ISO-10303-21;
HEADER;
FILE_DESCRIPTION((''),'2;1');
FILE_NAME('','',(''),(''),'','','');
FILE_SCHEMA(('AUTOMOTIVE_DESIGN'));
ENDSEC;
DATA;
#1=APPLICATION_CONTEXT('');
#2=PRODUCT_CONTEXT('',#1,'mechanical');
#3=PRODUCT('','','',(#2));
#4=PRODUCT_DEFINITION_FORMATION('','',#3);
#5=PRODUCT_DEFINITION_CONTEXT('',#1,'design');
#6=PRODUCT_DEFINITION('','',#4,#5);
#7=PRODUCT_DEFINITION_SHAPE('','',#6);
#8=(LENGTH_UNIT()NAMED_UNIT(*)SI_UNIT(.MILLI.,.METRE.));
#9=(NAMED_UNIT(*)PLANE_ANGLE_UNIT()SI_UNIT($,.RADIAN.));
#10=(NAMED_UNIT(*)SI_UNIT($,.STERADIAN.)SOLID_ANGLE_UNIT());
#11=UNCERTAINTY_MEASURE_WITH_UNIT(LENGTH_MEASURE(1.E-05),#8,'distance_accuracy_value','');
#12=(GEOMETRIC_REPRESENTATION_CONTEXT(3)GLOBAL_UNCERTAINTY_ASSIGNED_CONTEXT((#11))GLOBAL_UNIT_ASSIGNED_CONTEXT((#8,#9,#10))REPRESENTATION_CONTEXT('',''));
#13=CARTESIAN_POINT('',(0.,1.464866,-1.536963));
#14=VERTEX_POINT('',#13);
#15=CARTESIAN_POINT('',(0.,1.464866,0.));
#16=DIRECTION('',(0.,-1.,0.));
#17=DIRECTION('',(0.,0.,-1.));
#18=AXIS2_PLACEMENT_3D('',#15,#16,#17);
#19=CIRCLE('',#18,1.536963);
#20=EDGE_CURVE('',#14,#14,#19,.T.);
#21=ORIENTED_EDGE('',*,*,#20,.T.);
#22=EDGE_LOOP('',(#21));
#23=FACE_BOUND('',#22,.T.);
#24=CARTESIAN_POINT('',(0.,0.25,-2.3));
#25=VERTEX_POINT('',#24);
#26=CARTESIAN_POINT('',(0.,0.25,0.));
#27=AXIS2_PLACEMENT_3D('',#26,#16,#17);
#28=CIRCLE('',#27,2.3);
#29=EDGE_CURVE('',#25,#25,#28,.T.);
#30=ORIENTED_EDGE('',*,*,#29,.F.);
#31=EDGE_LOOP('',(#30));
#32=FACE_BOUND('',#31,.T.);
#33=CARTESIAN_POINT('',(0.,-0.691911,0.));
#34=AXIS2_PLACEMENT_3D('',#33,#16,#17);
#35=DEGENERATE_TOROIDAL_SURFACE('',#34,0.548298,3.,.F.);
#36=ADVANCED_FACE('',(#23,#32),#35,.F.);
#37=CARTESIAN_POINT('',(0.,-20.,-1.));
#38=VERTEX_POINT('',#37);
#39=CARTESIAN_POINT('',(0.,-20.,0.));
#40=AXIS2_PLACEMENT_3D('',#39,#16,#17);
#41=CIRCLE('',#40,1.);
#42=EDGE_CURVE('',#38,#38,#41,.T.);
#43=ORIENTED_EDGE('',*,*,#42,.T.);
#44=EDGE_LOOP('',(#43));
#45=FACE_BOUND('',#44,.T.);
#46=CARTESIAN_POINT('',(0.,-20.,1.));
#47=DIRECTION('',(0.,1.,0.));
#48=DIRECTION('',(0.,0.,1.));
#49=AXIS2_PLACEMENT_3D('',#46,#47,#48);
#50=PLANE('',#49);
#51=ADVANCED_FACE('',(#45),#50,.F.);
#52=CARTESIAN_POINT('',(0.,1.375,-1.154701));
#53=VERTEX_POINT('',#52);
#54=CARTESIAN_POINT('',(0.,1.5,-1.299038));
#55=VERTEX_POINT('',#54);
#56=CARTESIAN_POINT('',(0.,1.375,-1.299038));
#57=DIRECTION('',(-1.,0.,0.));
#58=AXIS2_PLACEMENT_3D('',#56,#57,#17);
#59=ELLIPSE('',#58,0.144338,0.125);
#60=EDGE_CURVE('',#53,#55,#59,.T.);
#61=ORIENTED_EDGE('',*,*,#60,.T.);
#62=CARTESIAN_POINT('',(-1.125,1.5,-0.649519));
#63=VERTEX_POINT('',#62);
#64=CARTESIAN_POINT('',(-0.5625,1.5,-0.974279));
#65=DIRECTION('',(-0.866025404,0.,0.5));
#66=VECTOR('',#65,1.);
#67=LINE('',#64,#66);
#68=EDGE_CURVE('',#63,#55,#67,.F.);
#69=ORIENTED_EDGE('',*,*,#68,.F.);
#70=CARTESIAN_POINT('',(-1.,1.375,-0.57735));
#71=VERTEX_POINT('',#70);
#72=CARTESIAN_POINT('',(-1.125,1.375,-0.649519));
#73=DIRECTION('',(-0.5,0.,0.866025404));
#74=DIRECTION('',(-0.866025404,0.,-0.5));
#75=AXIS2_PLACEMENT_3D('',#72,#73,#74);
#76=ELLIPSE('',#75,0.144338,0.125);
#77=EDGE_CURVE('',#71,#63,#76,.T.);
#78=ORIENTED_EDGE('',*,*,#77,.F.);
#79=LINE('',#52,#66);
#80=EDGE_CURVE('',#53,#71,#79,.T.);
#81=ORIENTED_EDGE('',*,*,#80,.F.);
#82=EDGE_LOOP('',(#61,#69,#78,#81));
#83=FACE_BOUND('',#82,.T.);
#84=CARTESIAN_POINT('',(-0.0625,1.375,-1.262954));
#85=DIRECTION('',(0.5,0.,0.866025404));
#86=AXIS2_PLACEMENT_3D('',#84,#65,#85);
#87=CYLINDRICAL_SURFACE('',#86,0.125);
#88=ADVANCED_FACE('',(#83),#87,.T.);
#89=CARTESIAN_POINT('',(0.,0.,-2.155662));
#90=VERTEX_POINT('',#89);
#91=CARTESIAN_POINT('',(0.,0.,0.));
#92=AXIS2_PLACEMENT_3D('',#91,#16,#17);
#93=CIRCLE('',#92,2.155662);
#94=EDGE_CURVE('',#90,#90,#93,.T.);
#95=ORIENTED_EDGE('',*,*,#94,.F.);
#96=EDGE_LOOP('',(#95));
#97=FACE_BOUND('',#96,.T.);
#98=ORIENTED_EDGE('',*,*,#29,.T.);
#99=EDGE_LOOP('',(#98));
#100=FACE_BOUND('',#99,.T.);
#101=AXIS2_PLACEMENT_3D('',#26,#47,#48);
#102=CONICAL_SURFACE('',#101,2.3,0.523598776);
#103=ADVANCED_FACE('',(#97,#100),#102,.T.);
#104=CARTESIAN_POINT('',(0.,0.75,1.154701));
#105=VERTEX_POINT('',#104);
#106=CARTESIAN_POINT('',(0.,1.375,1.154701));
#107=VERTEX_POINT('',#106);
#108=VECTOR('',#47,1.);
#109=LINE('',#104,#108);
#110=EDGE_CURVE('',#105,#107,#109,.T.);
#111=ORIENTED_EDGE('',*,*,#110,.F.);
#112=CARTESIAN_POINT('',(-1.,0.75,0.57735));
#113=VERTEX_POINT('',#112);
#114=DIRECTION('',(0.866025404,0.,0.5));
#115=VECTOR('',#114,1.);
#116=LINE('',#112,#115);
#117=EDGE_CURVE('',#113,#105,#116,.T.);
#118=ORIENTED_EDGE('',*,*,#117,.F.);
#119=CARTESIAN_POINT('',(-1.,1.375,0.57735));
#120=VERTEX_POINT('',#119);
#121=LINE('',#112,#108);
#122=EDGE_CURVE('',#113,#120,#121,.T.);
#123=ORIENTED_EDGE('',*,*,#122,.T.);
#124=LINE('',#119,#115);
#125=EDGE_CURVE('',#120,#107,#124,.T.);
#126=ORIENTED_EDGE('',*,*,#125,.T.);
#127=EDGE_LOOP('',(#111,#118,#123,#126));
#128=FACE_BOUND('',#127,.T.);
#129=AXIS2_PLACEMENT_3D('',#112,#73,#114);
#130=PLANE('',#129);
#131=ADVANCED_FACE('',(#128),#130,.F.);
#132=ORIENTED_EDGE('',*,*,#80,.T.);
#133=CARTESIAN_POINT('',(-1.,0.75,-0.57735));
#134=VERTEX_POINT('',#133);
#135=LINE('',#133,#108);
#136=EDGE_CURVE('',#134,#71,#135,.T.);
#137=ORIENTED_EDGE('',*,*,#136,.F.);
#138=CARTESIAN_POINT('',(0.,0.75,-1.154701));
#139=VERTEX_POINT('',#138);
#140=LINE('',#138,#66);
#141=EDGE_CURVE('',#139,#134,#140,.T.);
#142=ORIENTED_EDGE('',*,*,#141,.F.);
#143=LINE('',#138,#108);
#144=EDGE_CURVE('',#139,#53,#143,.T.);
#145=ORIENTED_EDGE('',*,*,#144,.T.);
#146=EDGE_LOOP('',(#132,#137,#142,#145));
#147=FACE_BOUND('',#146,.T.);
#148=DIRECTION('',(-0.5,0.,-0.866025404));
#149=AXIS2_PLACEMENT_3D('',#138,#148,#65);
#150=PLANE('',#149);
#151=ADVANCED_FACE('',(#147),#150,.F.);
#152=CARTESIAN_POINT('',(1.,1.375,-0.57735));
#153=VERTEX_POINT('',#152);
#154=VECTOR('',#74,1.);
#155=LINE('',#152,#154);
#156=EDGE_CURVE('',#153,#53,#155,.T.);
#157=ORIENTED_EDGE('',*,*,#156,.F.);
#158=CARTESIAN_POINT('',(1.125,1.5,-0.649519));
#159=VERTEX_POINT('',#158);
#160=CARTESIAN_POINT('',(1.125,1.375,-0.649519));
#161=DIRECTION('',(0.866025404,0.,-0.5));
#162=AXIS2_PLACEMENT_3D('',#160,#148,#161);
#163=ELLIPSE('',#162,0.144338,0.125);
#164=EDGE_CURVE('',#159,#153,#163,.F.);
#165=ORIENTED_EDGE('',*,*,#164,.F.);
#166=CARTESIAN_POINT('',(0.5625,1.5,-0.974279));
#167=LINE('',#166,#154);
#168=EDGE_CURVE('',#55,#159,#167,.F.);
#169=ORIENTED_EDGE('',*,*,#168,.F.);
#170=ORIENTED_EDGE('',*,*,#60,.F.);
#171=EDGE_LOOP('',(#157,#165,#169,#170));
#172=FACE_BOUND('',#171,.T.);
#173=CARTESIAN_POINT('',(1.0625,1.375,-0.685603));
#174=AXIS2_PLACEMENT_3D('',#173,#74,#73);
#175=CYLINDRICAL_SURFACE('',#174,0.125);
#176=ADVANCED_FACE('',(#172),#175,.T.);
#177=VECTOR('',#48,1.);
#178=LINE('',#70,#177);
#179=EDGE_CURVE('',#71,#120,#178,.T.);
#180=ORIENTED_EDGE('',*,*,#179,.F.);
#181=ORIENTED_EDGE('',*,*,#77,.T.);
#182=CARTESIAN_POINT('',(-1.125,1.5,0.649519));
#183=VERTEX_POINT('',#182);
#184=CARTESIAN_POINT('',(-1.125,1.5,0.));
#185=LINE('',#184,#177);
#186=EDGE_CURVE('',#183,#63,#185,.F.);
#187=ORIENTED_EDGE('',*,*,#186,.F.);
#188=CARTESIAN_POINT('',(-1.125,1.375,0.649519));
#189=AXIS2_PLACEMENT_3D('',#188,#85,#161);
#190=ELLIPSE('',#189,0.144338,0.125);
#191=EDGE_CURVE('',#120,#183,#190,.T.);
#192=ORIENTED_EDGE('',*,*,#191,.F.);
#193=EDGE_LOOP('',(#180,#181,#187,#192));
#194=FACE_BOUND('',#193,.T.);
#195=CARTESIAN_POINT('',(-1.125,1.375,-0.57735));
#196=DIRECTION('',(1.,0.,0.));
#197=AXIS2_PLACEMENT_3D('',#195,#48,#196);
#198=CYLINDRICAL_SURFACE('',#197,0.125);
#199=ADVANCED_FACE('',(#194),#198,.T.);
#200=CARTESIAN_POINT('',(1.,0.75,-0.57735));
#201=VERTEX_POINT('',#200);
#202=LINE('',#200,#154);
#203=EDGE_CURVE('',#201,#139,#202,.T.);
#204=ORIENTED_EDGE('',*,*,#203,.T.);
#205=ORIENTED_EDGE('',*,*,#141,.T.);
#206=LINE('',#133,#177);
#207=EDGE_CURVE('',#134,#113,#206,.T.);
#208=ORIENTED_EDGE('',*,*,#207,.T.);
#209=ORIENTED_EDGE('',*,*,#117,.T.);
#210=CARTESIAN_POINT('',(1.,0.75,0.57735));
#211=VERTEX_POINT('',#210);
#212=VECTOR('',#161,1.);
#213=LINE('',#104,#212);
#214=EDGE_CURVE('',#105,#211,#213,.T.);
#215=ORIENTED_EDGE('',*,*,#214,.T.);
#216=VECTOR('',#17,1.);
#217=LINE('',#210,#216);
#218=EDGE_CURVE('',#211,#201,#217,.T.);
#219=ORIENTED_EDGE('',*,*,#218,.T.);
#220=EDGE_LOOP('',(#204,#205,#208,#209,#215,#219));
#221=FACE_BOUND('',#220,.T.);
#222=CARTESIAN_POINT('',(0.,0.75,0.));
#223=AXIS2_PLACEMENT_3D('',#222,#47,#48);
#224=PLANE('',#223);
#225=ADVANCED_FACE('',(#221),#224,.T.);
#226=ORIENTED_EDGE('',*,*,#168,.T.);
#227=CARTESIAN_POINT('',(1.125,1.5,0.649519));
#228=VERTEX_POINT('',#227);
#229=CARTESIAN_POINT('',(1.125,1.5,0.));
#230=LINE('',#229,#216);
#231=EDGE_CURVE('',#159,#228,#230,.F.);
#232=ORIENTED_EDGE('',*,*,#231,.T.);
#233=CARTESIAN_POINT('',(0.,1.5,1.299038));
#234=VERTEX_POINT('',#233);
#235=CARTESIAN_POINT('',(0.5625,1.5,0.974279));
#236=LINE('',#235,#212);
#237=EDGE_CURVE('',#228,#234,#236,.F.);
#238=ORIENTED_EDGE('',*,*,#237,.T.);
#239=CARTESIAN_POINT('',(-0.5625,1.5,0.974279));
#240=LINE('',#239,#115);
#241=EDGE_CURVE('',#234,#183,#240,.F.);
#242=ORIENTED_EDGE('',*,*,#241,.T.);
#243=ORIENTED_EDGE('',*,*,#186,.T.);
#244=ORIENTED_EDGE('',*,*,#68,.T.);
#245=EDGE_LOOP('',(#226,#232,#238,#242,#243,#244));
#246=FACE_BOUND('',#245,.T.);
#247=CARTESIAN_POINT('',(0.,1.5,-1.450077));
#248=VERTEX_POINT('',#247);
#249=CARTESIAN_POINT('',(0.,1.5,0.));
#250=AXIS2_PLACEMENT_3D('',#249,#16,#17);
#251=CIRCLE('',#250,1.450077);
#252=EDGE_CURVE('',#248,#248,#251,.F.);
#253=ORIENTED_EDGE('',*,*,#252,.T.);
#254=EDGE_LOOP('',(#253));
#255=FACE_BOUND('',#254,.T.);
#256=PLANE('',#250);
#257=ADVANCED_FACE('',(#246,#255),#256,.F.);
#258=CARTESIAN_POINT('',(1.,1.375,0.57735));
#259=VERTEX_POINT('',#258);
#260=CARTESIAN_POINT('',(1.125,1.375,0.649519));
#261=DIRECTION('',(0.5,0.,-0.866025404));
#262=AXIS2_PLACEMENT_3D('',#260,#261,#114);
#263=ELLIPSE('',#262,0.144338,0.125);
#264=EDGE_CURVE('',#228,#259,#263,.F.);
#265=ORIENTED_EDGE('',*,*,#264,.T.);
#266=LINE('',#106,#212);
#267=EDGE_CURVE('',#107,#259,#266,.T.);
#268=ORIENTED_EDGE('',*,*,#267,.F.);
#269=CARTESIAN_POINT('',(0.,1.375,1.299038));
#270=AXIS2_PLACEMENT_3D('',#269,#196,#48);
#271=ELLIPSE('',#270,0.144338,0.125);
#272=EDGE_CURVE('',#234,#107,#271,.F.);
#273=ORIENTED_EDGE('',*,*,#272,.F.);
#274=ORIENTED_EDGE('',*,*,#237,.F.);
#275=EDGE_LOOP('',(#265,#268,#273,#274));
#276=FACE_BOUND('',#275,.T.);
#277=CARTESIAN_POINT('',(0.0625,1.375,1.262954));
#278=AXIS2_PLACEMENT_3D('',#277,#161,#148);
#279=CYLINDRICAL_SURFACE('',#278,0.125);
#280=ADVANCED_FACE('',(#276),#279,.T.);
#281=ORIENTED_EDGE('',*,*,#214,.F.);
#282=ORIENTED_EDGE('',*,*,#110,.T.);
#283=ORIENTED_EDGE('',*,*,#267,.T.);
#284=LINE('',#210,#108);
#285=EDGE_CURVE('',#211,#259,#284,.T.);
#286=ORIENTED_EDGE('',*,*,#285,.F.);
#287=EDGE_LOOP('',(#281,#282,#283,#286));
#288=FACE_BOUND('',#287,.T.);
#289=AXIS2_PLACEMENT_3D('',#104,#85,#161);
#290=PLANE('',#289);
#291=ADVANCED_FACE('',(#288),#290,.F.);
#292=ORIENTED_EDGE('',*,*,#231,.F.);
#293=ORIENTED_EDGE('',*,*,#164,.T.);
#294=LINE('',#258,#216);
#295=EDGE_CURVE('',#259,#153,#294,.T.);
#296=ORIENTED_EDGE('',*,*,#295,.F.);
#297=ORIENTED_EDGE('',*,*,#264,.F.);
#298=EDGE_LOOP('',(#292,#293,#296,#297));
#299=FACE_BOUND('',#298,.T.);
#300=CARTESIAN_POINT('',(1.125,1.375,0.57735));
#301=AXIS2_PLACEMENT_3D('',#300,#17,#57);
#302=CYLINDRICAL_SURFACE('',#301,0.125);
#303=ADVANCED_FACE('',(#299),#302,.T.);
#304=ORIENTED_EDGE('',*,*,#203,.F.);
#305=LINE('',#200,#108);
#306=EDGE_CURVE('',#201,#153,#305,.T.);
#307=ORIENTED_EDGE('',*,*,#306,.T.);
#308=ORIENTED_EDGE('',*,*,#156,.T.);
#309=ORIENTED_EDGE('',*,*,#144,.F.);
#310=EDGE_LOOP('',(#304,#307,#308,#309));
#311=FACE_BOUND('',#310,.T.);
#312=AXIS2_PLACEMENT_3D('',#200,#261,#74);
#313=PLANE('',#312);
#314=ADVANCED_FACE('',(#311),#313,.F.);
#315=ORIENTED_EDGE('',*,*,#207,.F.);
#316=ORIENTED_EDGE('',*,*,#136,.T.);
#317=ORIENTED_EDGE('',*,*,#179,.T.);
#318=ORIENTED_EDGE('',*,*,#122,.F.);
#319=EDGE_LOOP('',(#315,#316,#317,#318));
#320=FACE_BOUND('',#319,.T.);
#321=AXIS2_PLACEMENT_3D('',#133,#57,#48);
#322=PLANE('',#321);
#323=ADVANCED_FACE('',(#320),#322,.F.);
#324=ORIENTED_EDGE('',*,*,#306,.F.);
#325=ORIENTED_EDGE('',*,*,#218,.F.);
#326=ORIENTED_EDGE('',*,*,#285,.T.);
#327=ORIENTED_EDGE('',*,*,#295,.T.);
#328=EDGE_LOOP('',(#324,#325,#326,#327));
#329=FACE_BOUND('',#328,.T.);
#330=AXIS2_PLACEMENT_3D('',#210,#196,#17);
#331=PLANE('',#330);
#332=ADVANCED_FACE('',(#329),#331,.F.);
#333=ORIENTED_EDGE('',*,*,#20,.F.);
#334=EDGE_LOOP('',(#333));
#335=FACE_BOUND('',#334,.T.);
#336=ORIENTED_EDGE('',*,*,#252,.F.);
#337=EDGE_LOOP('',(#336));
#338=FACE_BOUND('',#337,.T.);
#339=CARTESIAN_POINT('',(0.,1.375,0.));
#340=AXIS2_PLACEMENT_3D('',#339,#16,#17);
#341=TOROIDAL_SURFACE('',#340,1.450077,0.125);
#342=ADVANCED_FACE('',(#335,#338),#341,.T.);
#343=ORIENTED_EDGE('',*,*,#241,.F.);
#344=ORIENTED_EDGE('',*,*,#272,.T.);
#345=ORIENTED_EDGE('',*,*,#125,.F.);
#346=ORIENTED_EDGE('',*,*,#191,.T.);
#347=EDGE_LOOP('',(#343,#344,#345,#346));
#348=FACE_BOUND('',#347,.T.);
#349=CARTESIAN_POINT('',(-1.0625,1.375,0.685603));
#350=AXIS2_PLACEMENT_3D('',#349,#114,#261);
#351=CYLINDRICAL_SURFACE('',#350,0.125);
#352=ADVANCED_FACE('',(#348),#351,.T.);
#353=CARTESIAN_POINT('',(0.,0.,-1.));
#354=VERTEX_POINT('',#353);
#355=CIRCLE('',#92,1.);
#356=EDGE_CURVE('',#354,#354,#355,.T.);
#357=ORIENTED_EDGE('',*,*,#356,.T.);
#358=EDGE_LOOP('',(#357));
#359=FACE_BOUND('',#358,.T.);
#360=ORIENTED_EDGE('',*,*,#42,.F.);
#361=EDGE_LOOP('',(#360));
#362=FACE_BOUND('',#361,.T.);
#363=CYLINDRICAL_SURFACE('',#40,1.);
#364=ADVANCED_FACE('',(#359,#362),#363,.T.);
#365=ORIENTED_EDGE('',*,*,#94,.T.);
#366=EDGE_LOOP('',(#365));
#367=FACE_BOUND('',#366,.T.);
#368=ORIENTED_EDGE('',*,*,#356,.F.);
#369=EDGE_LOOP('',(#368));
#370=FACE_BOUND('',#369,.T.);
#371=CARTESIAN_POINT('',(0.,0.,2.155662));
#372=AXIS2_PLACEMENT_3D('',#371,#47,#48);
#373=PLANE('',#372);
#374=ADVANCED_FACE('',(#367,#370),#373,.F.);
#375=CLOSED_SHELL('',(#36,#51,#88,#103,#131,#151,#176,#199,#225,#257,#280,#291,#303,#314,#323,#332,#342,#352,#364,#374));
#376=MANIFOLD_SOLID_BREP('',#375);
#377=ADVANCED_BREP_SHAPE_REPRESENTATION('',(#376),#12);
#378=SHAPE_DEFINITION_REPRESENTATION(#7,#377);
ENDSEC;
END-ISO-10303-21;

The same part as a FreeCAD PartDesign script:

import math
import FreeCAD as App
import Part
import Sketcher

V = App.Vector
Q = App.Units.Quantity


def edges_at(feature, points):
    """Names of the edges that pass closest to the given points."""
    edges = feature.Shape.Edges
    near = lambda p: min(range(len(edges)), key=lambda i: edges[i].distToShape(Part.Vertex(*p))[0])
    return sorted({f"Edge{near(p) + 1}" for p in points})


def add_polygon(sketch, points):
    """Adds a closed chain of lines whose ends are joined by coincident constraints."""
    first, n = sketch.GeometryCount, len(points)
    for a, b in zip(points, points[1:] + points[:1]):
        sketch.addGeometry(Part.LineSegment(App.Vector(*a, 0), App.Vector(*b, 0)), False)
    for i in range(n):
        sketch.addConstraint(Sketcher.Constraint("Coincident", first + i, 2, first + (i + 1) % n, 1))

doc = App.newDocument("Part")
params = doc.addObject("Spreadsheet::Sheet", "Params")
for row, (alias, value) in enumerate([
    ("sketch1_radius", "3 mm"),
    ("sketch1_width", "20 mm"),
    ("sketch1_height", "1 mm"),
    ("sketch1_width2", "21.5 mm"),
    ("sketch1_height2", "1.5 mm"),
    ("revolution_angle", "360 deg"),
    ("pocket1_length", "0.75 mm"),
    ("fillet_radius", "0.125 mm"),
], start=1):
    params.set(f"A{row}", alias)
    params.set(f"B{row}", "=" + value)
    params.setAlias(f"B{row}", alias)

body = doc.addObject("PartDesign::Body", "Body")

# Sketch on YZ plane
sketch1 = body.newObject("Sketcher::SketchObject", "Sketch")
sketch1.AttachmentSupport = (doc.getObject("YZ_Plane"), [""])
sketch1.MapMode = "FlatFace"
sketch1.addGeometry([
    Part.LineSegment(V(1.5, 0, 0), V(1.5, 1.5, 0)),  # 0
    Part.ArcOfCircle(Part.Circle(V(-0.69, -0.55, 0), V(0, 0, 1), 3), math.radians(43), math.radians(72)),  # 1
    Part.LineSegment(V(0.25, 2.3, 0), V(0, 2.16, 0)),  # 2
    Part.LineSegment(V(0, 2.16, 0), V(0, 1, 0)),  # 3
    Part.LineSegment(V(0, 1, 0), V(-20, 1, 0)),  # 4
    Part.LineSegment(V(-20, 1, 0), V(-20, 0, 0)),  # 5
    Part.LineSegment(V(-20, 0, 0), V(1.5, 0, 0)),  # 6
], False)
sketch1.addConstraint([
    Sketcher.Constraint("Coincident", 0, 2, 1, 1),
    Sketcher.Constraint("Coincident", 1, 2, 2, 1),
    Sketcher.Constraint("Coincident", 2, 2, 3, 1),
    Sketcher.Constraint("Coincident", 3, 2, 4, 1),
    Sketcher.Constraint("Coincident", 4, 2, 5, 1),
    Sketcher.Constraint("Coincident", 5, 2, 6, 1),
    Sketcher.Constraint("Coincident", 6, 2, 0, 1),
    Sketcher.Constraint("Vertical", 0),
    Sketcher.Constraint("Vertical", 3),
    Sketcher.Constraint("Horizontal", 4),
    Sketcher.Constraint("Vertical", 5),
    Sketcher.Constraint("Horizontal", 6),
    Sketcher.Constraint("PointOnObject", 2, 2, -2),
    Sketcher.Constraint("PointOnObject", 5, 2, -1),
    Sketcher.Constraint("Radius", 1, Q("3 mm")),
    Sketcher.Constraint("DistanceX", 4, 2, 4, 1, Q("20 mm")),
    Sketcher.Constraint("DistanceY", 5, 2, 5, 1, Q("1 mm")),
    Sketcher.Constraint("Angle", 2, Q("-150 deg")),
    Sketcher.Constraint("DistanceX", 6, 1, 6, 2, Q("21.5 mm")),
    Sketcher.Constraint("DistanceY", 0, 1, 0, 2, Q("1.5 mm")),
    Sketcher.Constraint("DistanceY", -1, 1, 1, 2, Q("2.3 mm")),
    Sketcher.Constraint("DistanceX", -1, 1, 1, 2, Q("0.25 mm")),
])
sketch1.setExpression("Constraints[14]", "Params.sketch1_radius")
sketch1.setExpression("Constraints[15]", "Params.sketch1_width")
sketch1.setExpression("Constraints[16]", "Params.sketch1_height")
sketch1.setExpression("Constraints[18]", "Params.sketch1_width2")
sketch1.setExpression("Constraints[19]", "Params.sketch1_height2")
revolution = body.newObject("PartDesign::Revolution", "Revolution")
revolution.Profile = sketch1
revolution.ReferenceAxis = (sketch1, ["H_Axis"])
revolution.setExpression("Angle", "Params.revolution_angle")

# Sketch on XZ plane
sketch2 = body.newObject("Sketcher::SketchObject", "Sketch001")
sketch2.AttachmentSupport = (doc.getObject("XZ_Plane"), [""])
sketch2.MapMode = "FlatFace"
sketch2.AttachmentOffset = App.Placement(V(0, 0, -1.5), App.Rotation())
add_polygon(sketch2, [(0, -1.2), (-1, -0.6), (-1, 0.6), (0, 1.2), (1, 0.6), (1, -0.6)])  # lines 0-5
sketch2.addConstraint([
    Sketcher.Constraint("Vertical", 1),
    Sketcher.Constraint("Vertical", 4),
    Sketcher.Constraint("Symmetric", 0, 2, 3, 2, -1, 1),
    Sketcher.Constraint("Symmetric", 2, 2, 5, 2, -1, 1),
    Sketcher.Constraint("PointOnObject", 2, 2, -2),
    Sketcher.Constraint("Parallel", 2, 5),
    Sketcher.Constraint("Horizontal", 1, 2, 3, 2),
    Sketcher.Constraint("Angle", 0, Q("150 deg")),
    Sketcher.Constraint("DistanceX", 0, 2, -1, 1, Q("1 mm")),
    Sketcher.Constraint("DistanceY", 1, 1, 1, 2, Q("1.154701 mm")),
])
pocket1 = body.newObject("PartDesign::Pocket", "Pocket")
pocket1.Profile = sketch2
pocket1.setExpression("Length", "Params.pocket1_length")
pocket1.Reversed = True
doc.recompute()

fillet = body.newObject("PartDesign::Fillet", "Fillet")
fillet.Base = (pocket1, edges_at(pocket1, [
    (0.5, 1.5, -0.866),
    (-0.5, 1.5, -0.866),
    (-1, 1.5, 0),
    (-0.5, 1.5, 0.866),
    (0.5, 1.5, 0.866),
    (1, 1.5, 0),
    (0, 1.5, -1.5),
]))
fillet.setExpression("Radius", "Params.fillet_radius")

doc.recompute()
